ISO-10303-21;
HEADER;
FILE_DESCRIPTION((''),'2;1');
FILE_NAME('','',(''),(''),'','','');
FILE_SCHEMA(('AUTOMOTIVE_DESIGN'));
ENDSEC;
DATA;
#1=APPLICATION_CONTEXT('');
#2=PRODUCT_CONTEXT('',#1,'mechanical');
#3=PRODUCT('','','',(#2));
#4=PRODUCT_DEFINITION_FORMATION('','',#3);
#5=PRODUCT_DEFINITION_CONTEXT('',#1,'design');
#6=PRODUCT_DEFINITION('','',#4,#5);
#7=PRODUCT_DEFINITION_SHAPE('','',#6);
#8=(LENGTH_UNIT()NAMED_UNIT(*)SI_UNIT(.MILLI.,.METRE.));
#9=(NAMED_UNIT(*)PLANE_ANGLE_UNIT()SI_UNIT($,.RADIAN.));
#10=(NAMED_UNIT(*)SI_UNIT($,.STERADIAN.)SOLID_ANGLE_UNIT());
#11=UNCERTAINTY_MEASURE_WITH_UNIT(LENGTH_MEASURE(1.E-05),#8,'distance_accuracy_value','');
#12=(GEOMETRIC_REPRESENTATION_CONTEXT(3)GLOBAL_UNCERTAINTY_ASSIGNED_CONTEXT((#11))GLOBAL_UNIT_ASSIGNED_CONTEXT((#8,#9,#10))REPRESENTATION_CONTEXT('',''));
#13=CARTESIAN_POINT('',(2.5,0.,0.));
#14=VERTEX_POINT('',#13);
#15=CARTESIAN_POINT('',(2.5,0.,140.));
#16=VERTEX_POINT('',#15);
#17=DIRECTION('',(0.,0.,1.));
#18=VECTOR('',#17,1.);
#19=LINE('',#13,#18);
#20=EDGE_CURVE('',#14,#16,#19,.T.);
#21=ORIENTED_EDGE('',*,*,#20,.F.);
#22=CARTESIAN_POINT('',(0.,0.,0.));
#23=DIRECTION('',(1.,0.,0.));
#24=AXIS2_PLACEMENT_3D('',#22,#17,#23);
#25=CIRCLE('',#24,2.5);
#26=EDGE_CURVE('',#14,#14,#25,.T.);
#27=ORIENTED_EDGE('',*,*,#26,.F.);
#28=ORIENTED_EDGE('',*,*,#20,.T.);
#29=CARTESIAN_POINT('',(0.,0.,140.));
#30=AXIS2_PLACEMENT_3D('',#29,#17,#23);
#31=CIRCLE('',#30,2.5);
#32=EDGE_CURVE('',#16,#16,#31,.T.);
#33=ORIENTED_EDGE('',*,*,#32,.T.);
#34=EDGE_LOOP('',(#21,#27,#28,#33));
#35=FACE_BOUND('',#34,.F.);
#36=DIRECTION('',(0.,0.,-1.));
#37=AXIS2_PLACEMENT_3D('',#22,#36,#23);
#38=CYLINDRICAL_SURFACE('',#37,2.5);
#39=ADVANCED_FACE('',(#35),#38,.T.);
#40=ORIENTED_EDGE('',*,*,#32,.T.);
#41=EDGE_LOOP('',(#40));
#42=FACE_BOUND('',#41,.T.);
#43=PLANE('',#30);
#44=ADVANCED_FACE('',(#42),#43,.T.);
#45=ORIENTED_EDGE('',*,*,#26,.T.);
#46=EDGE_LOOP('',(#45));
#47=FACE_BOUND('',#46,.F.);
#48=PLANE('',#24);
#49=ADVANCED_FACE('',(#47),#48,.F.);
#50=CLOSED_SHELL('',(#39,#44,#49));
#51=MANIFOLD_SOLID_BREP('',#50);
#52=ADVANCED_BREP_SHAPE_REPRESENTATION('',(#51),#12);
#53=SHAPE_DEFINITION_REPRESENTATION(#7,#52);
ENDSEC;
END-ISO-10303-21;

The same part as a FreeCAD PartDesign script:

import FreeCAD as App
import Part
import Sketcher

V = App.Vector

doc = App.newDocument("Part")
params = doc.addObject("Spreadsheet::Sheet", "Params")
for row, (alias, value) in enumerate([
    ("sketch1_diameter", "5 mm"),
    ("pad1_length", "140 mm"),
], start=1):
    params.set(f"A{row}", alias)
    params.set(f"B{row}", "=" + value)
    params.setAlias(f"B{row}", alias)

body = doc.addObject("PartDesign::Body", "Body")

sketch1 = doc.addObject("Sketcher::SketchObject", "Sketch")
body.addObject(sketch1)
sketch1.AttachmentSupport = (doc.XY_Plane, [""])
sketch1.MapMode = "FlatFace"
sketch1.addGeometry(Part.Circle(V(0, 0, 0), V(0, 0, 1), 2.5), False)
sketch1.addConstraint([
    Sketcher.Constraint("Coincident", 0, 3, -1, 1),
    Sketcher.Constraint("Diameter", 0, 5.0),
])
sketch1.setExpression("Constraints[1]", "Params.sketch1_diameter")
pad1 = doc.addObject("PartDesign::Pad", "Pad")
body.addObject(pad1)
pad1.Profile = sketch1
pad1.setExpression("Length", "Params.pad1_length")

doc.recompute()
